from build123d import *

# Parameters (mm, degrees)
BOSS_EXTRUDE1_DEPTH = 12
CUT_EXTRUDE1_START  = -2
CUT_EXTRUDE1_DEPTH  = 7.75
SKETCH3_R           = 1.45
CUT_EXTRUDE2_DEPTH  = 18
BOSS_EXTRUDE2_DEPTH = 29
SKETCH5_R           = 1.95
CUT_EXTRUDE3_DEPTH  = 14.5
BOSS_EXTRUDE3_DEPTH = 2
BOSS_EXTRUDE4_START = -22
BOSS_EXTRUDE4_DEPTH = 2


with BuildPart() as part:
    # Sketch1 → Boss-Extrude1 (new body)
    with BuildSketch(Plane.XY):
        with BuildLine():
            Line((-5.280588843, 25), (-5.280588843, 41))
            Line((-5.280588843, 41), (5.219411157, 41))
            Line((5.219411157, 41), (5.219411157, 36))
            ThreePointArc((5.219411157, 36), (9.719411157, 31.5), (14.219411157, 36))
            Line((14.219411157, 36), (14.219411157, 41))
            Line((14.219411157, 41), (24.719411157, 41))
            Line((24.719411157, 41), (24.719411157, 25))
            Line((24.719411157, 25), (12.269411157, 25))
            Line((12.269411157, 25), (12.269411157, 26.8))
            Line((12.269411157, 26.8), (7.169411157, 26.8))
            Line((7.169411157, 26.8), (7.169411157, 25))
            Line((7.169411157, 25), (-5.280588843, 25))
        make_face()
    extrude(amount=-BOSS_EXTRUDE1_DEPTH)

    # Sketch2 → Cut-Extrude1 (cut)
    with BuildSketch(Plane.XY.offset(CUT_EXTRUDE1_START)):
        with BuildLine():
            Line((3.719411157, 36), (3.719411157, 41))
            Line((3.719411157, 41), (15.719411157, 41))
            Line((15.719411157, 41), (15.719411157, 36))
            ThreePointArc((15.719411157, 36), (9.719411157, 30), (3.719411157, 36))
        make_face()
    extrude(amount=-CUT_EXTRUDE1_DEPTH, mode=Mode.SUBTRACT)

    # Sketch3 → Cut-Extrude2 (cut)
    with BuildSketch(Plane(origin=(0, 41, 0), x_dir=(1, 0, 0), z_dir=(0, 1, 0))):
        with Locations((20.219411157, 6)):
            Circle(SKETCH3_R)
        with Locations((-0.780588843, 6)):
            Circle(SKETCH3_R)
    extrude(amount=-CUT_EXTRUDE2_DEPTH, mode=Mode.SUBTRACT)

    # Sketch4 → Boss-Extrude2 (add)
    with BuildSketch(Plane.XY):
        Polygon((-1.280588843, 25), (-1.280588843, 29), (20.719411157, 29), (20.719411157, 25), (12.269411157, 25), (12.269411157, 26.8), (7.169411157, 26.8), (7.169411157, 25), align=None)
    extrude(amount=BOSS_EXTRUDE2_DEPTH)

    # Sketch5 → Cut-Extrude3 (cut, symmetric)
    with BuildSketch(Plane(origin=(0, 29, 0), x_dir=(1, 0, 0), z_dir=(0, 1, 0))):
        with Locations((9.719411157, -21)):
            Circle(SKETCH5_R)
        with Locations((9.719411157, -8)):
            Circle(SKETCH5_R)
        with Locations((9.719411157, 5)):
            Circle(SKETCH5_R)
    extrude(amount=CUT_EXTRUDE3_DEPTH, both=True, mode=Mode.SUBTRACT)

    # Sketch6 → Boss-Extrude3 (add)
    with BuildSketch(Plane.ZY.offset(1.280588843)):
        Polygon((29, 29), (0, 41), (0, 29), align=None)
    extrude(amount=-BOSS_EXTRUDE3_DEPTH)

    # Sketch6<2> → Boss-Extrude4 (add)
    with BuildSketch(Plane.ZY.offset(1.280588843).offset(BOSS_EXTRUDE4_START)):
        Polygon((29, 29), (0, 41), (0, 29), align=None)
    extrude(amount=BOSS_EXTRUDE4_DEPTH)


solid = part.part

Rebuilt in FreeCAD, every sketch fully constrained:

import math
import FreeCAD as App
import Part
import Sketcher

V = App.Vector
Q = App.Units.Quantity

doc = App.newDocument("Part")
body = doc.addObject("PartDesign::Body", "Body")

sketch1 = body.newObject("Sketcher::SketchObject", "Sketch")
sketch1.AttachmentSupport = (doc.getObject("XY_Plane"), [""])
sketch1.MapMode = "FlatFace"
sketch1.addGeometry(Part.LineSegment(V(-5.3, 41, 0), V(-5.3, 25, 0)), False)
sketch1.addGeometry(Part.LineSegment(V(-5.3, 25, 0), V(7.2, 25, 0)), False)
sketch1.addGeometry(Part.LineSegment(V(7.2, 25, 0), V(7.2, 26.8, 0)), False)
sketch1.addGeometry(Part.LineSegment(V(7.2, 26.8, 0), V(12.3, 26.8, 0)), False)
sketch1.addGeometry(Part.LineSegment(V(12.3, 26.8, 0), V(12.3, 25, 0)), False)
sketch1.addGeometry(Part.LineSegment(V(12.3, 25, 0), V(24.7, 25, 0)), False)
sketch1.addGeometry(Part.LineSegment(V(24.7, 25, 0), V(24.7, 41, 0)), False)
sketch1.addGeometry(Part.LineSegment(V(24.7, 41, 0), V(14.2, 41, 0)), False)
sketch1.addGeometry(Part.LineSegment(V(14.2, 41, 0), V(14.2, 36, 0)), False)
sketch1.addGeometry(Part.ArcOfCircle(Part.Circle(V(9.7, 36, 0), V(0, 0, 1), 4.5), math.radians(180), math.radians(360)), False)
sketch1.addGeometry(Part.LineSegment(V(5.2, 36, 0), V(5.2, 41, 0)), False)
sketch1.addGeometry(Part.LineSegment(V(5.2, 41, 0), V(-5.3, 41, 0)), False)
sketch1.addConstraint(Sketcher.Constraint("Coincident", 0, 2, 1, 1))
sketch1.addConstraint(Sketcher.Constraint("Coincident", 1, 2, 2, 1))
sketch1.addConstraint(Sketcher.Constraint("Coincident", 2, 2, 3, 1))
sketch1.addConstraint(Sketcher.Constraint("Coincident", 3, 2, 4, 1))
sketch1.addConstraint(Sketcher.Constraint("Coincident", 4, 2, 5, 1))
sketch1.addConstraint(Sketcher.Constraint("Coincident", 5, 2, 6, 1))
sketch1.addConstraint(Sketcher.Constraint("Coincident", 6, 2, 7, 1))
sketch1.addConstraint(Sketcher.Constraint("Coincident", 7, 2, 8, 1))
sketch1.addConstraint(Sketcher.Constraint("Tangent", 8, 2, 9, 2))
sketch1.addConstraint(Sketcher.Constraint("Tangent", 9, 1, 10, 1))
sketch1.addConstraint(Sketcher.Constraint("Coincident", 10, 2, 11, 1))
sketch1.addConstraint(Sketcher.Constraint("Coincident", 11, 2, 0, 1))
sketch1.addConstraint(Sketcher.Constraint("Vertical", 0))
sketch1.addConstraint(Sketcher.Constraint("Horizontal", 1))
sketch1.addConstraint(Sketcher.Constraint("Vertical", 2))
sketch1.addConstraint(Sketcher.Constraint("Horizontal", 3))
sketch1.addConstraint(Sketcher.Constraint("Vertical", 4))
sketch1.addConstraint(Sketcher.Constraint("Horizontal", 5))
sketch1.addConstraint(Sketcher.Constraint("Vertical", 6))
sketch1.addConstraint(Sketcher.Constraint("Horizontal", 7))
sketch1.addConstraint(Sketcher.Constraint("Vertical", 8))
sketch1.addConstraint(Sketcher.Constraint("Vertical", 10))
sketch1.addConstraint(Sketcher.Constraint("Horizontal", 11))
sketch1.addConstraint(Sketcher.Constraint("Horizontal", 1, 2, 4, 2))
sketch1.addConstraint(Sketcher.Constraint("Horizontal", 7, 2, 10, 2))
sketch1.addConstraint(Sketcher.Constraint("Equal", 1, 5))
sketch1.addConstraint(Sketcher.Constraint("Equal", 7, 11))
sketch1.addConstraint(Sketcher.Constraint("Radius", 9, Q("4.5 mm")))
sketch1.addConstraint(Sketcher.Constraint("DistanceY", 0, 2, 0, 1, Q("16 mm")))
sketch1.addConstraint(Sketcher.Constraint("DistanceY", 8, 2, 8, 1, Q("5 mm")))
sketch1.addConstraint(Sketcher.Constraint("DistanceX", 3, 1, 3, 2, Q("5.1 mm")))
sketch1.addConstraint(Sketcher.Constraint("DistanceX", 7, 2, 7, 1, Q("10.5 mm")))
sketch1.addConstraint(Sketcher.Constraint("DistanceY", 2, 1, 2, 2, Q("1.8 mm")))
sketch1.addConstraint(Sketcher.Constraint("DistanceY", -1, 1, 9, 3, Q("36 mm")))
sketch1.addConstraint(Sketcher.Constraint("DistanceX", -1, 1, 9, 3, Q("9.719411 mm")))
pad1 = body.newObject("PartDesign::Pad", "Pad")
pad1.Profile = sketch1
pad1.Length = 12
pad1.Reversed = True

sketch2 = body.newObject("Sketcher::SketchObject", "Sketch001")
sketch2.AttachmentSupport = (doc.getObject("XY_Plane"), [""])
sketch2.MapMode = "FlatFace"
sketch2.AttachmentOffset = App.Placement(V(0, 0, -2), App.Rotation())
sketch2.addGeometry(Part.LineSegment(V(4, 41, 0), V(4, 36, 0)), False)
sketch2.addGeometry(Part.ArcOfCircle(Part.Circle(V(10, 36, 0), V(0, 0, 1), 6), math.radians(180), math.radians(360)), False)
sketch2.addGeometry(Part.LineSegment(V(16, 36, 0), V(16, 41, 0)), False)
sketch2.addGeometry(Part.LineSegment(V(16, 41, 0), V(4, 41, 0)), False)
sketch2.addConstraint(Sketcher.Constraint("Tangent", 0, 2, 1, 1))
sketch2.addConstraint(Sketcher.Constraint("Tangent", 1, 2, 2, 1))
sketch2.addConstraint(Sketcher.Constraint("Coincident", 2, 2, 3, 1))
sketch2.addConstraint(Sketcher.Constraint("Coincident", 3, 2, 0, 1))
sketch2.addConstraint(Sketcher.Constraint("Vertical", 0))
sketch2.addConstraint(Sketcher.Constraint("Vertical", 2))
sketch2.addConstraint(Sketcher.Constraint("Horizontal", 3))
sketch2.addConstraint(Sketcher.Constraint("Radius", 1, Q("6 mm")))
sketch2.addConstraint(Sketcher.Constraint("DistanceY", 0, 2, 0, 1, Q("5 mm")))
sketch2.addConstraint(Sketcher.Constraint("DistanceY", -1, 1, 1, 3, Q("36 mm")))
sketch2.addConstraint(Sketcher.Constraint("DistanceX", -1, 1, 1, 3, Q("9.719411 mm")))
pocket1 = body.newObject("PartDesign::Pocket", "Pocket")
pocket1.Profile = sketch2
pocket1.Length = 7.75

sketch3 = body.newObject("Sketcher::SketchObject", "Sketch002")
sketch3.AttachmentSupport = (doc.getObject("XZ_Plane"), [""])
sketch3.MapMode = "FlatFace"
sketch3.AttachmentOffset = App.Placement(V(0, 0, -41), App.Rotation())
sketch3.addGeometry(Part.Circle(V(20.2, -6, 0), V(0, 0, 1), 1.4), False)
sketch3.addGeometry(Part.Circle(V(-0.8, -6, 0), V(0, 0, 1), 1.4), False)
sketch3.addConstraint(Sketcher.Constraint("Equal", 0, 1))
sketch3.addConstraint(Sketcher.Constraint("Horizontal", 0, 3, 1, 3))
sketch3.addConstraint(Sketcher.Constraint("Diameter", 0, Q("2.9 mm")))
sketch3.addConstraint(Sketcher.Constraint("DistanceY", 0, 3, -1, 1, Q("6 mm")))
sketch3.addConstraint(Sketcher.Constraint("DistanceX", 1, 3, 0, 3, Q("21 mm")))
sketch3.addConstraint(Sketcher.Constraint("DistanceX", -1, 1, 0, 3, Q("20.219411 mm")))
pocket2 = body.newObject("PartDesign::Pocket", "Pocket001")
pocket2.Profile = sketch3
pocket2.Length = 18
pocket2.Reversed = True

sketch4 = body.newObject("Sketcher::SketchObject", "Sketch003")
sketch4.AttachmentSupport = (doc.getObject("XY_Plane"), [""])
sketch4.MapMode = "FlatFace"
sketch4.addGeometry(Part.LineSegment(V(-1.3, 29, 0), V(-1.3, 25, 0)), False)
sketch4.addGeometry(Part.LineSegment(V(-1.3, 25, 0), V(7.2, 25, 0)), False)
sketch4.addGeometry(Part.LineSegment(V(7.2, 25, 0), V(7.2, 26.8, 0)), False)
sketch4.addGeometry(Part.LineSegment(V(7.2, 26.8, 0), V(12.3, 26.8, 0)), False)
sketch4.addGeometry(Part.LineSegment(V(12.3, 26.8, 0), V(12.3, 25, 0)), False)
sketch4.addGeometry(Part.LineSegment(V(12.3, 25, 0), V(20.7, 25, 0)), False)
sketch4.addGeometry(Part.LineSegment(V(20.7, 25, 0), V(20.7, 29, 0)), False)
sketch4.addGeometry(Part.LineSegment(V(20.7, 29, 0), V(-1.3, 29, 0)), False)
sketch4.addConstraint(Sketcher.Constraint("Coincident", 0, 2, 1, 1))
sketch4.addConstraint(Sketcher.Constraint("Coincident", 1, 2, 2, 1))
sketch4.addConstraint(Sketcher.Constraint("Coincident", 2, 2, 3, 1))
sketch4.addConstraint(Sketcher.Constraint("Coincident", 3, 2, 4, 1))
sketch4.addConstraint(Sketcher.Constraint("Coincident", 4, 2, 5, 1))
sketch4.addConstraint(Sketcher.Constraint("Coincident", 5, 2, 6, 1))
sketch4.addConstraint(Sketcher.Constraint("Coincident", 6, 2, 7, 1))
sketch4.addConstraint(Sketcher.Constraint("Coincident", 7, 2, 0, 1))
sketch4.addConstraint(Sketcher.Constraint("Vertical", 0))
sketch4.addConstraint(Sketcher.Constraint("Horizontal", 1))
sketch4.addConstraint(Sketcher.Constraint("Vertical", 2))
sketch4.addConstraint(Sketcher.Constraint("Horizontal", 3))
sketch4.addConstraint(Sketcher.Constraint("Vertical", 4))
sketch4.addConstraint(Sketcher.Constraint("Horizontal", 5))
sketch4.addConstraint(Sketcher.Constraint("Vertical", 6))
sketch4.addConstraint(Sketcher.Constraint("Horizontal", 7))
sketch4.addConstraint(Sketcher.Constraint("Horizontal", 1, 2, 4, 2))
sketch4.addConstraint(Sketcher.Constraint("Equal", 1, 5))
sketch4.addConstraint(Sketcher.Constraint("DistanceX", 7, 2, 7, 1, Q("22 mm")))
sketch4.addConstraint(Sketcher.Constraint("DistanceY", 0, 2, 0, 1, Q("4 mm")))
sketch4.addConstraint(Sketcher.Constraint("DistanceX", 3, 1, 3, 2, Q("5.1 mm")))
sketch4.addConstraint(Sketcher.Constraint("DistanceY", 2, 1, 2, 2, Q("1.8 mm")))
sketch4.addConstraint(Sketcher.Constraint("DistanceY", -1, 1, 0, 2, Q("25 mm")))
sketch4.addConstraint(Sketcher.Constraint("DistanceX", 0, 2, -1, 1, Q("1.280589 mm")))
pad2 = body.newObject("PartDesign::Pad", "Pad001")
pad2.Profile = sketch4
pad2.Length = 29

sketch5 = body.newObject("Sketcher::SketchObject", "Sketch004")
sketch5.AttachmentSupport = (doc.getObject("XZ_Plane"), [""])
sketch5.MapMode = "FlatFace"
sketch5.AttachmentOffset = App.Placement(V(0, 0, -29), App.Rotation())
sketch5.addGeometry(Part.Circle(V(9.7, 21, 0), V(0, 0, 1), 1.9), False)
sketch5.addGeometry(Part.Circle(V(9.7, 8, 0), V(0, 0, 1), 1.9), False)
sketch5.addGeometry(Part.Circle(V(9.7, -5, 0), V(0, 0, 1), 1.9), False)
sketch5.addConstraint(Sketcher.Constraint("Equal", 0, 1))
sketch5.addConstraint(Sketcher.Constraint("Equal", 1, 2))
sketch5.addConstraint(Sketcher.Constraint("Vertical", 0, 3, 1, 3))
sketch5.addConstraint(Sketcher.Constraint("Vertical", 1, 3, 2, 3))
sketch5.addConstraint(Sketcher.Constraint("Diameter", 0, Q("3.9 mm")))
sketch5.addConstraint(Sketcher.Constraint("DistanceY", -1, 1, 0, 3, Q("21 mm")))
sketch5.addConstraint(Sketcher.Constraint("DistanceY", -1, 1, 1, 3, Q("8 mm")))
sketch5.addConstraint(Sketcher.Constraint("DistanceY", 2, 3, -1, 1, Q("5 mm")))
sketch5.addConstraint(Sketcher.Constraint("DistanceX", -1, 1, 0, 3, Q("9.719411 mm")))
pocket3 = body.newObject("PartDesign::Pocket", "Pocket002")
pocket3.Profile = sketch5
pocket3.Length = 29
pocket3.Midplane = True

sketch6 = body.newObject("Sketcher::SketchObject", "Sketch005")
sketch6.AttachmentSupport = (doc.getObject("YZ_Plane"), [""])
sketch6.MapMode = "FlatFace"
sketch6.AttachmentOffset = App.Placement(V(0, 0, -1.280589), App.Rotation())
sketch6.addGeometry(Part.LineSegment(V(29, 29, 0), V(41, 0, 0)), False)
sketch6.addGeometry(Part.LineSegment(V(41, 0, 0), V(29, 0, 0)), False)
sketch6.addGeometry(Part.LineSegment(V(29, 0, 0), V(29, 29, 0)), False)
sketch6.addConstraint(Sketcher.Constraint("Coincident", 0, 2, 1, 1))
sketch6.addConstraint(Sketcher.Constraint("Coincident", 1, 2, 2, 1))
sketch6.addConstraint(Sketcher.Constraint("Coincident", 2, 2, 0, 1))
sketch6.addConstraint(Sketcher.Constraint("Horizontal", 1))
sketch6.addConstraint(Sketcher.Constraint("Vertical", 2))
sketch6.addConstraint(Sketcher.Constraint("PointOnObject", 0, 2, -1))
sketch6.addConstraint(Sketcher.Constraint("DistanceX", 1, 2, 1, 1, Q("12 mm")))
sketch6.addConstraint(Sketcher.Constraint("DistanceY", 2, 1, 2, 2, Q("29 mm")))
sketch6.addConstraint(Sketcher.Constraint("DistanceX", -1, 1, 0, 2, Q("41 mm")))
pad3 = body.newObject("PartDesign::Pad", "Pad002")
pad3.Profile = sketch6
pad3.Length = 2

sketch7 = body.newObject("Sketcher::SketchObject", "Sketch006")
sketch7.AttachmentSupport = (doc.getObject("YZ_Plane"), [""])
sketch7.MapMode = "FlatFace"
sketch7.AttachmentOffset = App.Placement(V(0, 0, 20.719411), App.Rotation())
sketch7.addGeometry(Part.LineSegment(V(29, 29, 0), V(41, 0, 0)), False)
sketch7.addGeometry(Part.LineSegment(V(41, 0, 0), V(29, 0, 0)), False)
sketch7.addGeometry(Part.LineSegment(V(29, 0, 0), V(29, 29, 0)), False)
sketch7.addConstraint(Sketcher.Constraint("Coincident", 0, 2, 1, 1))
sketch7.addConstraint(Sketcher.Constraint("Coincident", 1, 2, 2, 1))
sketch7.addConstraint(Sketcher.Constraint("Coincident", 2, 2, 0, 1))
sketch7.addConstraint(Sketcher.Constraint("Horizontal", 1))
sketch7.addConstraint(Sketcher.Constraint("Vertical", 2))
sketch7.addConstraint(Sketcher.Constraint("PointOnObject", 0, 2, -1))
sketch7.addConstraint(Sketcher.Constraint("DistanceX", 1, 2, 1, 1, Q("12 mm")))
sketch7.addConstraint(Sketcher.Constraint("DistanceY", 2, 1, 2, 2, Q("29 mm")))
sketch7.addConstraint(Sketcher.Constraint("DistanceX", -1, 1, 0, 2, Q("41 mm")))
pad4 = body.newObject("PartDesign::Pad", "Pad003")
pad4.Profile = sketch7
pad4.Length = 2
pad4.Reversed = True

doc.recompute()
